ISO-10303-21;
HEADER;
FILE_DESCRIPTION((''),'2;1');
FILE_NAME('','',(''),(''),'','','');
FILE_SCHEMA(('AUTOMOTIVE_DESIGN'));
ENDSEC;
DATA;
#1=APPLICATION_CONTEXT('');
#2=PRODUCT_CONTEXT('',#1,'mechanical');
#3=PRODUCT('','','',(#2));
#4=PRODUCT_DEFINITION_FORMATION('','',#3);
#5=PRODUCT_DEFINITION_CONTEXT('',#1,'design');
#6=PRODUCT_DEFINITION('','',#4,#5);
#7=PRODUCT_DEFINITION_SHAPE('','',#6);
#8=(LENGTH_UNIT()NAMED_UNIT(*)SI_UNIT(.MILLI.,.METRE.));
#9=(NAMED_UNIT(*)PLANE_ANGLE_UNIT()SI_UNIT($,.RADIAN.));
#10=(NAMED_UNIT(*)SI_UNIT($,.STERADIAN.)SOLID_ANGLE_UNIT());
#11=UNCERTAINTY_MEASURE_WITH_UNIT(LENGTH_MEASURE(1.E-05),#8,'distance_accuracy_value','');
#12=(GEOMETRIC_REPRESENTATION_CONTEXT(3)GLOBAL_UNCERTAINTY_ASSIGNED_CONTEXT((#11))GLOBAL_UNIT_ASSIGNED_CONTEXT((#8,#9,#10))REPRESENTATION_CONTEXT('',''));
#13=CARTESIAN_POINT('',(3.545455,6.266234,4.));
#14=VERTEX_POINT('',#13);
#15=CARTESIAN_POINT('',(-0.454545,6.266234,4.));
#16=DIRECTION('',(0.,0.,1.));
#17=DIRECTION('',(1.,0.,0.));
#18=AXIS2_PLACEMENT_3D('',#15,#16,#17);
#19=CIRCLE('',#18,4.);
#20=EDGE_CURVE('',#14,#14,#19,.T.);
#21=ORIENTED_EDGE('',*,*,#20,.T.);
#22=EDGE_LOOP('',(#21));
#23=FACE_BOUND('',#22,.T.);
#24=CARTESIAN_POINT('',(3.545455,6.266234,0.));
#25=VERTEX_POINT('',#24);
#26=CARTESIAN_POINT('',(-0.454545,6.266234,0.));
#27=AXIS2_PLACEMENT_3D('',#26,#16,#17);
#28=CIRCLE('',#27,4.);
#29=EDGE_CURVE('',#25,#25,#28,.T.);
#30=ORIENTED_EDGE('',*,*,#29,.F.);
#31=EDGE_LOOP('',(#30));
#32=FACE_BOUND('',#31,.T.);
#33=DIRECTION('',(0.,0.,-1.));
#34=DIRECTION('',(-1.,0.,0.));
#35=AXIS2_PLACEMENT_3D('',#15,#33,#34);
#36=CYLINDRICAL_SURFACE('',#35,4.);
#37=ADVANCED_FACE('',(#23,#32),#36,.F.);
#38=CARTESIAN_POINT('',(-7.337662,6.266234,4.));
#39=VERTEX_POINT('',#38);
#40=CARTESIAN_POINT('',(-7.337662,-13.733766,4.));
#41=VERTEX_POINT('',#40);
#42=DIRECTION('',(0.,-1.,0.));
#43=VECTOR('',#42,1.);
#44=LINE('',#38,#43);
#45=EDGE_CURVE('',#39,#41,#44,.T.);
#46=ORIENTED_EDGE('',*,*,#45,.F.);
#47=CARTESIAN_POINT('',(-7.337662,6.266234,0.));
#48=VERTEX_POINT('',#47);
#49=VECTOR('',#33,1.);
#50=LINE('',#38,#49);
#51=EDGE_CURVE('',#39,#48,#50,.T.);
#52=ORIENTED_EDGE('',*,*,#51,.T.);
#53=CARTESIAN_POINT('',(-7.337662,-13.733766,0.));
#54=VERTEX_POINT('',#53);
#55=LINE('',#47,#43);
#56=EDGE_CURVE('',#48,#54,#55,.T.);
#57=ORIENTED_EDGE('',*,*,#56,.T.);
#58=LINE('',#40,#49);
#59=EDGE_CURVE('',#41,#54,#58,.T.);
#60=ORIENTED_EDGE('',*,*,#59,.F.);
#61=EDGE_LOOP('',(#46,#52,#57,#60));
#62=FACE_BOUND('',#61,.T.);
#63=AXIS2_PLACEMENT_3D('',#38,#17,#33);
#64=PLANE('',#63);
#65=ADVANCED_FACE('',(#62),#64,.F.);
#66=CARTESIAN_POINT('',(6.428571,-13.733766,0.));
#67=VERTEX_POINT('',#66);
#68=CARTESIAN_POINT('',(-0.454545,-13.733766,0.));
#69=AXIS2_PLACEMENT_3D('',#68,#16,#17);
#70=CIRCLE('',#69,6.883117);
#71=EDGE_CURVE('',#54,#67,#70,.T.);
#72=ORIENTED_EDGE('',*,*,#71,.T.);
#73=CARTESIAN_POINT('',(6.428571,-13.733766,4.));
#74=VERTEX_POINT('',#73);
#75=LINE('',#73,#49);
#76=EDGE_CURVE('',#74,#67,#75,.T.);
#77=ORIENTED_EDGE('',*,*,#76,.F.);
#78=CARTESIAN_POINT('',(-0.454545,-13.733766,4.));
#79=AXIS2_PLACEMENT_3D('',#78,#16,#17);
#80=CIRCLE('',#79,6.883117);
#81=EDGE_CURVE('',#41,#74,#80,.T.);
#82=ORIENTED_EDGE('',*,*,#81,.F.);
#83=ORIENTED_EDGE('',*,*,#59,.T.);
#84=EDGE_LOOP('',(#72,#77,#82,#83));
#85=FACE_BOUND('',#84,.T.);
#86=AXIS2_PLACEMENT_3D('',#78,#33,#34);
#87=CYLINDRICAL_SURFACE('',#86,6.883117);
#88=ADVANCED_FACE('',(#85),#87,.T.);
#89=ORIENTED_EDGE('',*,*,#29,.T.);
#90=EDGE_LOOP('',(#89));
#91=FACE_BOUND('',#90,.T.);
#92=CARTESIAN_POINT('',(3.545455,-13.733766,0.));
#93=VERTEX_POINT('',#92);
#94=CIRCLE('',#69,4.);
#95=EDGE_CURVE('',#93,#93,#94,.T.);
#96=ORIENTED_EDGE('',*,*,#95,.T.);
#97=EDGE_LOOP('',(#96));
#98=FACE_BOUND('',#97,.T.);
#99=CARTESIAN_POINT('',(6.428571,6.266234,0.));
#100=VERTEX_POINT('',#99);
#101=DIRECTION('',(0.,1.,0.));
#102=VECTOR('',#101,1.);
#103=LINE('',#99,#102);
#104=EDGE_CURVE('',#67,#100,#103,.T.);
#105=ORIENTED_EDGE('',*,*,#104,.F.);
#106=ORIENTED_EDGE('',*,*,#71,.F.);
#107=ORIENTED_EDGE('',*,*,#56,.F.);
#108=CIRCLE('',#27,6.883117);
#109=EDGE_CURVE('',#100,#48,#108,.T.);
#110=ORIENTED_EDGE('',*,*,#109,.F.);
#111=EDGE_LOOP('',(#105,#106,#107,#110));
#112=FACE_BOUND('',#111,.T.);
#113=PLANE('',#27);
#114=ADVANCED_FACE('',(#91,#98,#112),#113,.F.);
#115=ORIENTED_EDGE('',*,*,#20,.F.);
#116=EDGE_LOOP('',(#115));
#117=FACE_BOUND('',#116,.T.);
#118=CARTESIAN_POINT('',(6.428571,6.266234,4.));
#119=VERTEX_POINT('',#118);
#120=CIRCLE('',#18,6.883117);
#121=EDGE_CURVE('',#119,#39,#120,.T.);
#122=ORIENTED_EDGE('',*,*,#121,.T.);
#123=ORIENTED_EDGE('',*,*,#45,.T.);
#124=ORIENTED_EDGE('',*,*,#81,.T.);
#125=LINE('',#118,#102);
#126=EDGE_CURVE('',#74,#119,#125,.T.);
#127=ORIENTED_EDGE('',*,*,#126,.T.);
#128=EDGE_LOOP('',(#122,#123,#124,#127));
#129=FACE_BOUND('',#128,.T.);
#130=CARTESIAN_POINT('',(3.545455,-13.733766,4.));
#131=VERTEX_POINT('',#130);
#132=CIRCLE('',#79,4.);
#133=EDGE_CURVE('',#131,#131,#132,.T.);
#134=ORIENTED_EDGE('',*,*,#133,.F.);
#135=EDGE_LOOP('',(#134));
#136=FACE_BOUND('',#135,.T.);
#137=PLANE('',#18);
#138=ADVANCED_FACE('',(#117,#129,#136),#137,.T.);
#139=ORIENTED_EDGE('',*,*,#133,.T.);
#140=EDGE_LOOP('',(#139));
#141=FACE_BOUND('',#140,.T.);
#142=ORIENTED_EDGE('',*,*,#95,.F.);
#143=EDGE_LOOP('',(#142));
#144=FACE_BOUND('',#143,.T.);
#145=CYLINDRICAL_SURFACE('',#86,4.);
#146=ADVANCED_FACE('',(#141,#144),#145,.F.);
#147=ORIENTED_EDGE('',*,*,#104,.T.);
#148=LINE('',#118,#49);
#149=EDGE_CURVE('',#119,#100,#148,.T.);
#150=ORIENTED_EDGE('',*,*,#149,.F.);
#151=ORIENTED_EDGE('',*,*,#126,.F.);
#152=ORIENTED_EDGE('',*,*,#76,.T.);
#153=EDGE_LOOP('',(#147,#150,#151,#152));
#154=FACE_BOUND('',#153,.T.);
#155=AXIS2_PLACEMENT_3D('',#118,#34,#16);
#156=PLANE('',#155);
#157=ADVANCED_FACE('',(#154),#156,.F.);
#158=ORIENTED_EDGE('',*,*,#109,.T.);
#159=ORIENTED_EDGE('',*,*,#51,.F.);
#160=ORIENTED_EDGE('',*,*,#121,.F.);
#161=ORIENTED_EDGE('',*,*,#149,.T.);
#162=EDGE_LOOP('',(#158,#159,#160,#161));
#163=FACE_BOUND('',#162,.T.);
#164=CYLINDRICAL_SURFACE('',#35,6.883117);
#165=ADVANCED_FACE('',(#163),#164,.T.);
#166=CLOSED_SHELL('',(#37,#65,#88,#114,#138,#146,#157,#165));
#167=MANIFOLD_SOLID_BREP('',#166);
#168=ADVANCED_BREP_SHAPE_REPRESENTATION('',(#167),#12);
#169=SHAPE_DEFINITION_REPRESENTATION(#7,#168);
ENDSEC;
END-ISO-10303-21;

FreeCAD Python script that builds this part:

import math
import FreeCAD as App
import Part
import Sketcher

V = App.Vector

doc = App.newDocument("Part")
params = doc.addObject("Spreadsheet::Sheet", "Params")
for row, (alias, value) in enumerate([
    ("sketch1_diameter", "8 mm"),
    ("sketch1_height", "20 mm"),
    ("pad1_length", "4 mm"),
], start=1):
    params.set(f"A{row}", alias)
    params.set(f"B{row}", "=" + value)
    params.setAlias(f"B{row}", alias)

body = doc.addObject("PartDesign::Body", "Body")

# Sketch on XY plane
sketch1 = body.newObject("Sketcher::SketchObject", "Sketch")
sketch1.AttachmentSupport = (doc.getObject("XY_Plane"), [""])
sketch1.MapMode = "FlatFace"
sketch1.addGeometry([
    Part.LineSegment(V(6.428571, -13.733766, 0), V(6.428571, 6.266234, 0)),  # 0
    Part.ArcOfCircle(Part.Circle(V(-0.454545, 6.266234, 0), V(0, 0, 1), 6.883117), math.radians(0), math.radians(180)),  # 1
    Part.LineSegment(V(-7.337662, 6.266234, 0), V(-7.337662, -13.733766, 0)),  # 2
    Part.ArcOfCircle(Part.Circle(V(-0.454545, -13.733766, 0), V(0, 0, 1), 6.883117), math.radians(180), math.radians(360)),  # 3
    Part.Circle(V(-0.454545, -13.733766, 0), V(0, 0, 1), 4),  # 4
    Part.Circle(V(-0.454545, 6.266234, 0), V(0, 0, 1), 4),  # 5
], False)
sketch1.addConstraint([
    Sketcher.Constraint("Tangent", 0, 2, 1, 1),
    Sketcher.Constraint("Tangent", 1, 2, 2, 1),
    Sketcher.Constraint("Tangent", 2, 2, 3, 1),
    Sketcher.Constraint("Tangent", 3, 2, 0, 1),
    Sketcher.Constraint("Vertical", 0),
    Sketcher.Constraint("Vertical", 2),
    Sketcher.Constraint("Coincident", 4, 3, 3, 3),
    Sketcher.Constraint("Coincident", 5, 3, 1, 3),
    Sketcher.Constraint("Equal", 4, 5),
    Sketcher.Constraint("Diameter", 4, 8.0),
    Sketcher.Constraint("DistanceY", 0, 1, 0, 2, 20.0),
    Sketcher.Constraint("Radius", 1, 6.883117),
    Sketcher.Constraint("DistanceX", -1, 1, 0, 2, 6.428571),
    Sketcher.Constraint("DistanceY", -1, 1, 1, 3, 6.266234),
])
sketch1.setExpression("Constraints[9]", "Params.sketch1_diameter")
sketch1.setExpression("Constraints[10]", "Params.sketch1_height")
pad1 = body.newObject("PartDesign::Pad", "Pad")
pad1.Profile = sketch1
pad1.setExpression("Length", "Params.pad1_length")

doc.recompute()
